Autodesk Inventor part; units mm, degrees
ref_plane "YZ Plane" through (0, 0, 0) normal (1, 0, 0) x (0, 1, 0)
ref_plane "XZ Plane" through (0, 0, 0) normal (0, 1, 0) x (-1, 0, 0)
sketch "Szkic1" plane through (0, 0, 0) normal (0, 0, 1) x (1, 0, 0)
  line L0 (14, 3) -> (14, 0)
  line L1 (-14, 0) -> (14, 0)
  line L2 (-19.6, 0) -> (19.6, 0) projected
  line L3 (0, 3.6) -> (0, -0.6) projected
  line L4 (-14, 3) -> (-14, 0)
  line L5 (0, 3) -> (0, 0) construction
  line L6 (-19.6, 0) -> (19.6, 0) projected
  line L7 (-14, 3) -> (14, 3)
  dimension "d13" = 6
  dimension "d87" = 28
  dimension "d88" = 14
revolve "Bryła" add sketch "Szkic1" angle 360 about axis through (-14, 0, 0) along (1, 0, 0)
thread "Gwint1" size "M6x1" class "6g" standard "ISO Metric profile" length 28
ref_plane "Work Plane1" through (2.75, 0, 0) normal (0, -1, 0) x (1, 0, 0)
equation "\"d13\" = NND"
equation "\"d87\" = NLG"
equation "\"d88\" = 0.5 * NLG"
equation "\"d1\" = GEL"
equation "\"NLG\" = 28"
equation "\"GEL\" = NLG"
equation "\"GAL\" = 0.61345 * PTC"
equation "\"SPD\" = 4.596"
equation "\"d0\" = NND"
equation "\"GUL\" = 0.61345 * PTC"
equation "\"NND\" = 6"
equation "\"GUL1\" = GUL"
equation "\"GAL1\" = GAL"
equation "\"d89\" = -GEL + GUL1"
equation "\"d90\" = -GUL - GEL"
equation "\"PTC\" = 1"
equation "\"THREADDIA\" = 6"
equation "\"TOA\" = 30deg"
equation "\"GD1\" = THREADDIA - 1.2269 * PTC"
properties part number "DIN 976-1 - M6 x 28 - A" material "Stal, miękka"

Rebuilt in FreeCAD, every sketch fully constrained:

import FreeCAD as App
import Part
import Sketcher

V = App.Vector

doc = App.newDocument("Part")
params = doc.addObject("Spreadsheet::Sheet", "Params")
for row, (alias, value) in enumerate([
    ("sketch1_width", "28 mm"),
    ("sketch1_height", "3 mm"),
    ("revolution_angle", "360 deg"),
], start=1):
    params.set(f"A{row}", alias)
    params.set(f"B{row}", "=" + value)
    params.setAlias(f"B{row}", alias)

body = doc.addObject("PartDesign::Body", "Body")

# Sketch on XY plane
sketch1 = body.newObject("Sketcher::SketchObject", "Sketch")
sketch1.AttachmentSupport = (doc.getObject("XY_Plane"), [""])
sketch1.MapMode = "FlatFace"
sketch1.addGeometry([
    Part.LineSegment(V(14, 0, 0), V(14, 3, 0)),
    Part.LineSegment(V(14, 3, 0), V(-14, 3, 0)),
    Part.LineSegment(V(-14, 3, 0), V(-14, 0, 0)),
    Part.LineSegment(V(-14, 0, 0), V(14, 0, 0)),
], False)
sketch1.addConstraint([
    Sketcher.Constraint("Coincident", 0, 2, 1, 1),
    Sketcher.Constraint("Coincident", 1, 2, 2, 1),
    Sketcher.Constraint("Coincident", 2, 2, 3, 1),
    Sketcher.Constraint("Coincident", 3, 2, 0, 1),
    Sketcher.Constraint("Vertical", 0),
    Sketcher.Constraint("Horizontal", 1),
    Sketcher.Constraint("Vertical", 2),
    Sketcher.Constraint("Horizontal", 3),
    Sketcher.Constraint("Symmetric", 2, 2, 3, 2, -1, 1),
    Sketcher.Constraint("DistanceX", 1, 2, 1, 1, 28.0),
    Sketcher.Constraint("DistanceY", 0, 1, 0, 2, 3.0),
])
sketch1.setExpression("Constraints[9]", "Params.sketch1_width")
sketch1.setExpression("Constraints[10]", "Params.sketch1_height")
revolution = body.newObject("PartDesign::Revolution", "Revolution")
revolution.Profile = sketch1
revolution.ReferenceAxis = (sketch1, ["H_Axis"])
revolution.setExpression("Angle", "Params.revolution_angle")

doc.recompute()
